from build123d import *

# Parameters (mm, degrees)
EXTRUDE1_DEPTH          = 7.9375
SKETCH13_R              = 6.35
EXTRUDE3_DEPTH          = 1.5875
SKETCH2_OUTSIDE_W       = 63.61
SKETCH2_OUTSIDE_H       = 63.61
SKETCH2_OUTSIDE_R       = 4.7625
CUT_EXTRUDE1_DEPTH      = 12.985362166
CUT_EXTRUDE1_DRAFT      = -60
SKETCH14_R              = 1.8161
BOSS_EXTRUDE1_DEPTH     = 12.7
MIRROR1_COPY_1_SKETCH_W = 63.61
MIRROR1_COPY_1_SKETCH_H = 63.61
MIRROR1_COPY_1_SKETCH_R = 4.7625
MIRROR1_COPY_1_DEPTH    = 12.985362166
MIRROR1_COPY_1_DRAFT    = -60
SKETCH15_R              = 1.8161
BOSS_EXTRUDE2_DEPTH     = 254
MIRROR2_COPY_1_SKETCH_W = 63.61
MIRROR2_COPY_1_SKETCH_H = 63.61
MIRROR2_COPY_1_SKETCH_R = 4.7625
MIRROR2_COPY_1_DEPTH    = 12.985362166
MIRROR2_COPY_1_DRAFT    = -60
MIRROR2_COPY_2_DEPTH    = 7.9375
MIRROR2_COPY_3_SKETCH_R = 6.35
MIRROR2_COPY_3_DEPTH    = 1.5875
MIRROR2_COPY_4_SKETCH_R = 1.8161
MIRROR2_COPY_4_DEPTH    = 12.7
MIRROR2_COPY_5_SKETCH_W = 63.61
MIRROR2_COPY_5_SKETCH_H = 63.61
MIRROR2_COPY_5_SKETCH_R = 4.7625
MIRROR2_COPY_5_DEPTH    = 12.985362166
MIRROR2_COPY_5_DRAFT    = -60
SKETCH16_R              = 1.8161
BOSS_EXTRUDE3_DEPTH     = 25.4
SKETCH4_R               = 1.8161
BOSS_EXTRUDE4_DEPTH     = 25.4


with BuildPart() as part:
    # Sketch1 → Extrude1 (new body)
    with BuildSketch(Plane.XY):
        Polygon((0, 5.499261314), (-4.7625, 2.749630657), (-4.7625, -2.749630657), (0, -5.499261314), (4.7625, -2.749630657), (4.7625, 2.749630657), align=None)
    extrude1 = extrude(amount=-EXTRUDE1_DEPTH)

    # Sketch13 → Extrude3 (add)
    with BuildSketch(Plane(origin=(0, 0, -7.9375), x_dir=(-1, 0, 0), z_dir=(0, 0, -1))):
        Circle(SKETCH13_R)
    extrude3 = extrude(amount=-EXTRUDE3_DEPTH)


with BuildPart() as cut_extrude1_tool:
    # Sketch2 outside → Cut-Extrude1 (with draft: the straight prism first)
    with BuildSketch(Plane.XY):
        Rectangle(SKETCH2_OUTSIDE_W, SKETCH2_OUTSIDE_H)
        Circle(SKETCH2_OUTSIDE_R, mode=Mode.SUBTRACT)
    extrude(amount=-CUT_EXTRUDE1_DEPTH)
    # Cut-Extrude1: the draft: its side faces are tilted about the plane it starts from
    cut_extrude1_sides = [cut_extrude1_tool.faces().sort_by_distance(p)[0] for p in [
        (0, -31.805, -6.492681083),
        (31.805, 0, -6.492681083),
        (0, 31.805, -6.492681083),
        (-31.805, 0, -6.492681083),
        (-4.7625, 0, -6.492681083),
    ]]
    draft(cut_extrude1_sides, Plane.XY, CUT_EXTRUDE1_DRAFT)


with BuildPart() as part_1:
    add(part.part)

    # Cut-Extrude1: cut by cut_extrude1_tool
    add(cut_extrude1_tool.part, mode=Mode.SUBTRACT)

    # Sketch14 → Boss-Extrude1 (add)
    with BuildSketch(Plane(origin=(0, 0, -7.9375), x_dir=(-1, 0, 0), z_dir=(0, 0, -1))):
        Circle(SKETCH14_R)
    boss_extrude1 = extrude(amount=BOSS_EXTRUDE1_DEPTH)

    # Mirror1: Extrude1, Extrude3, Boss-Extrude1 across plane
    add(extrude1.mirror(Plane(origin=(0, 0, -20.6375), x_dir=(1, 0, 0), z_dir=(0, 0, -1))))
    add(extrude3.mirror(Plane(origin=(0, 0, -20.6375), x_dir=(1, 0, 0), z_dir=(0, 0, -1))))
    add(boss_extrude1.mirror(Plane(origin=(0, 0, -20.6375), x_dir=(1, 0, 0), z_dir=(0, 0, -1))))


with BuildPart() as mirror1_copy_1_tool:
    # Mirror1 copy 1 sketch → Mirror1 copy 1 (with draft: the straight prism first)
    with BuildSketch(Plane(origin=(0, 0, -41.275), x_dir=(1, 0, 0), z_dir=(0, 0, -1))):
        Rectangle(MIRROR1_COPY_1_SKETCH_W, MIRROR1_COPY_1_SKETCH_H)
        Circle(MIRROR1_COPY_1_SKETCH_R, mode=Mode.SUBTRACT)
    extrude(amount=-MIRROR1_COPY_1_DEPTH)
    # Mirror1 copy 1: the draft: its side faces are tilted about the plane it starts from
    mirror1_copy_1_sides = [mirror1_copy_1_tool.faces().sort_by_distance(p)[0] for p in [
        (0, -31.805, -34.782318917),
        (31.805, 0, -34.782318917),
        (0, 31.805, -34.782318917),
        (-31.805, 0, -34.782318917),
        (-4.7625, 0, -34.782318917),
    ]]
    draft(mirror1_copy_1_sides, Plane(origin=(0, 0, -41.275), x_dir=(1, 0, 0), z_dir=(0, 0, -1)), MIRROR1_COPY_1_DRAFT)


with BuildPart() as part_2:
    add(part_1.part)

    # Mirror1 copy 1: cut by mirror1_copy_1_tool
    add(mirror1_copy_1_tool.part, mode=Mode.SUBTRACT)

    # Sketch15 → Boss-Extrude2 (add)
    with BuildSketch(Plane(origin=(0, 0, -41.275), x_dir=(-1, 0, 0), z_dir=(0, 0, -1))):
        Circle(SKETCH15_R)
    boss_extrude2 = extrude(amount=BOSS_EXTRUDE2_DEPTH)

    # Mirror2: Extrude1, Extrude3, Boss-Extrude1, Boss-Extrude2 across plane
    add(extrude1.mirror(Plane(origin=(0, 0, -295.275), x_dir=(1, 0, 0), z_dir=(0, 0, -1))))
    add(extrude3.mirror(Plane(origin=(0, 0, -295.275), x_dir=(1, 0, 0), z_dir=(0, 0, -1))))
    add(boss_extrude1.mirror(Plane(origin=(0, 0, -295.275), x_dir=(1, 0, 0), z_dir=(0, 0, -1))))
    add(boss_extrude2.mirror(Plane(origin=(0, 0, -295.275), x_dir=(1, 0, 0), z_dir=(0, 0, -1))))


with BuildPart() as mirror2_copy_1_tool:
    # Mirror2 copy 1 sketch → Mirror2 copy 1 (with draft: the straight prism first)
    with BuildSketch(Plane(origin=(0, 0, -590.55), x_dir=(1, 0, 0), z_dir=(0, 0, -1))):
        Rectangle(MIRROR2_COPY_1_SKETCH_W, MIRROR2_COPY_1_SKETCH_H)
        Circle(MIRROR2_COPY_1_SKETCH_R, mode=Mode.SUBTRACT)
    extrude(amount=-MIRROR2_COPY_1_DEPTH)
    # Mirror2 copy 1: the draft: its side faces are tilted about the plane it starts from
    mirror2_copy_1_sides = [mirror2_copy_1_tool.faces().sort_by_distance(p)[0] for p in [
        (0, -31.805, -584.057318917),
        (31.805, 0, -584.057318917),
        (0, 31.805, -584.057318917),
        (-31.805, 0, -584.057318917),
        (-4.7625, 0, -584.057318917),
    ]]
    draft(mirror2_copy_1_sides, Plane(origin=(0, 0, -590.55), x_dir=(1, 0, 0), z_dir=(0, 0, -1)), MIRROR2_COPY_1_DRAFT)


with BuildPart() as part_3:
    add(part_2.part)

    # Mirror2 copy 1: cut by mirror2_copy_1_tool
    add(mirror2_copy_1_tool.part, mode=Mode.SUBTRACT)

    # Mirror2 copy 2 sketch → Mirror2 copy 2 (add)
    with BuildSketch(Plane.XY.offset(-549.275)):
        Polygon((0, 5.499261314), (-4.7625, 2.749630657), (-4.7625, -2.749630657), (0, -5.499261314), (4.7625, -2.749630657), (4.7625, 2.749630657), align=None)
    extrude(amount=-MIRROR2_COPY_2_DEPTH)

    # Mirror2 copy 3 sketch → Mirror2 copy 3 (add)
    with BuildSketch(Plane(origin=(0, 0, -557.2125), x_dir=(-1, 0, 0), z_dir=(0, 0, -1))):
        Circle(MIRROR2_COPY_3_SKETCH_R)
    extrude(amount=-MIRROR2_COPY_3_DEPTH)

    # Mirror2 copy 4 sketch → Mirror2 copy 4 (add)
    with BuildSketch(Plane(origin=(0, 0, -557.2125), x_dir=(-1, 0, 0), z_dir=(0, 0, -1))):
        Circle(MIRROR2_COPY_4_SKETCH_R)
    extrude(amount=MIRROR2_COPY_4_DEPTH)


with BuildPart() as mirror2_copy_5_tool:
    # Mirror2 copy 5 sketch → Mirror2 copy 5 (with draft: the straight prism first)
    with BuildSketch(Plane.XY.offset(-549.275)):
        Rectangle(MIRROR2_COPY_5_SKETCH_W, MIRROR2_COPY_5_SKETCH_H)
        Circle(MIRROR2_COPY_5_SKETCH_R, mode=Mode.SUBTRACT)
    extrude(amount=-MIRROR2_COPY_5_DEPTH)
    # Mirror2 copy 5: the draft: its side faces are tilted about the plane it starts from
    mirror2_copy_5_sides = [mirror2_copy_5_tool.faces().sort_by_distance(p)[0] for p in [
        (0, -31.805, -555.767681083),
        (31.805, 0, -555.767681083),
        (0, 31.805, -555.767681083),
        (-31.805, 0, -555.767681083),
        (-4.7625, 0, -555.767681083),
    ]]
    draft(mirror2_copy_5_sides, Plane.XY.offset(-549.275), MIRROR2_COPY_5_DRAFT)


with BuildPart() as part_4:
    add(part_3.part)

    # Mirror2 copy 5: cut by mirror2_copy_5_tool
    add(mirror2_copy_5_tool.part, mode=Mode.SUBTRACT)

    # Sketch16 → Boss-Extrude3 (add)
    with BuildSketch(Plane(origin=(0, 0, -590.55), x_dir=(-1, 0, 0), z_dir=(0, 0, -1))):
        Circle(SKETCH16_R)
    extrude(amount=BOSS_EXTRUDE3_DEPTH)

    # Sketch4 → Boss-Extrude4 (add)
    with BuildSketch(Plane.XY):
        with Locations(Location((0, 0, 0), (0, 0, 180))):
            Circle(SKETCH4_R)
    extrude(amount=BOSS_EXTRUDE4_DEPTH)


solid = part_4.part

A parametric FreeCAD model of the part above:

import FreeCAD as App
import Part
import Sketcher
from FreeCAD import Vector
Q = App.Units.Quantity


def faces_at(feature, points):
    """Names of the faces that lie closest to the given points."""
    faces = feature.Shape.Faces
    near = lambda p: min(range(len(faces)), key=lambda i: faces[i].distToShape(Part.Vertex(*p))[0])
    return sorted({f"Face{near(p) + 1}" for p in points})


def add_polygon(sketch, points):
    """Adds a closed chain of lines whose ends are joined by coincident constraints."""
    first, n = sketch.GeometryCount, len(points)
    for a, b in zip(points, points[1:] + points[:1]):
        sketch.addGeometry(Part.LineSegment(App.Vector(*a, 0), App.Vector(*b, 0)), False)
    for i in range(n):
        sketch.addConstraint(Sketcher.Constraint("Coincident", first + i, 2, first + (i + 1) % n, 1))

doc = App.newDocument("Part")
params = doc.addObject("Spreadsheet::Sheet", "Params")
for row, (alias, value) in enumerate([
    ("pad1_length", "0.3125 in"),
    ("sketch2_diameter", "0.5 in"),
    ("pad2_length", "0.0625 in"),
    ("sketch3_diameter", "0.375 in"),
    ("pad3_length", "12.985362 mm"),
    ("draft_angle", "60 deg"),
    ("sketch4_diameter", "0.143 in"),
    ("pad4_length", "0.5 in"),
    ("sketch5_diameter", "0.375 in"),
    ("pad5_length", "12.985362 mm"),
    ("draft2_angle", "60 deg"),
    ("sketch6_diameter", "0.143 in"),
    ("pad6_length", "10 in"),
    ("sketch7_diameter", "0.375 in"),
    ("pad7_length", "12.985362 mm"),
    ("draft3_angle", "60 deg"),
    ("pad8_length", "0.3125 in"),
    ("sketch9_diameter", "0.5 in"),
    ("pad9_length", "0.0625 in"),
    ("sketch10_diameter", "0.143 in"),
    ("pad10_length", "0.5 in"),
    ("sketch11_diameter", "0.375 in"),
    ("pad11_length", "12.985362 mm"),
    ("draft4_angle", "60 deg"),
    ("sketch12_diameter", "0.143 in"),
    ("pad12_length", "1 in"),
    ("sketch13_diameter", "0.143 in"),
    ("pad13_length", "1 in"),
], start=1):
    params.set(f"A{row}", alias)
    params.set(f"B{row}", "=" + value)
    params.setAlias(f"B{row}", alias)

body = doc.addObject("PartDesign::Body", "Body")

sketch1 = body.newObject("Sketcher::SketchObject", "Sketch")
sketch1.AttachmentSupport = (doc.getObject("XY_Plane"), [""])
sketch1.MapMode = "FlatFace"
add_polygon(sketch1, [(0, 5), (-5, 3), (-5, -3), (0, -5), (5, -3), (5, 3)])
sketch1.addConstraint([
    Sketcher.Constraint("Vertical", 1),
    Sketcher.Constraint("Vertical", 4),
    Sketcher.Constraint("Symmetric", 0, 2, 3, 2, -1, 1),
    Sketcher.Constraint("Symmetric", 2, 2, 5, 2, -1, 1),
    Sketcher.Constraint("PointOnObject", 2, 2, -2),
    Sketcher.Constraint("Parallel", 2, 5),
    Sketcher.Constraint("Horizontal", 1, 2, 3, 2),
    Sketcher.Constraint("Angle", 0, Q("-150 deg")),
    Sketcher.Constraint("DistanceX", 0, 2, -1, 1, Q("0.1875 in")),
    Sketcher.Constraint("DistanceY", 1, 2, 1, 1, 5.499261),
])
pad1 = body.newObject("PartDesign::Pad", "Pad")
pad1.Profile = sketch1
pad1.setExpression("Length", "Params.pad1_length")
pad1.Reversed = True

sketch2 = body.newObject("Sketcher::SketchObject", "Sketch001")
sketch2.AttachmentSupport = (doc.getObject("XY_Plane"), [""])
sketch2.MapMode = "FlatFace"
sketch2.AttachmentOffset = App.Placement(Vector(0, 0, -0.3125 * 25.4), App.Rotation())
sketch2.addGeometry(Part.Circle(Vector(0, 0, 0), Vector(0, 0, 1), 6), False)
sketch2.addConstraint([
    Sketcher.Constraint("Coincident", 0, 3, -1, 1),
    Sketcher.Constraint("Diameter", 0, Q("0.5 in")),
])
sketch2.setExpression("Constraints[1]", "Params.sketch2_diameter")
pad2 = body.newObject("PartDesign::Pad", "Pad001")
pad2.Profile = sketch2
pad2.setExpression("Length", "Params.pad2_length")
body2 = doc.addObject("PartDesign::Body", "Body001")

sketch3 = body2.newObject("Sketcher::SketchObject", "Sketch002")
sketch3.AttachmentSupport = (doc.getObject("XY_Plane001"), [""])
sketch3.MapMode = "FlatFace"
add_polygon(sketch3, [(-31.8, 31.8), (-31.8, -31.8), (31.8, -31.8), (31.8, 31.8)])
sketch3.addGeometry(Part.Circle(Vector(0, 0, 0), Vector(0, 0, 1), 4.8), False)
sketch3.addConstraint([
    Sketcher.Constraint("Vertical", 0),
    Sketcher.Constraint("Horizontal", 1),
    Sketcher.Constraint("Vertical", 2),
    Sketcher.Constraint("Horizontal", 3),
    Sketcher.Constraint("Coincident", 4, 3, -1, 1),
    Sketcher.Constraint("Symmetric", 0, 2, 2, 2, -1, 1),
    Sketcher.Constraint("Equal", 3, 0),
    Sketcher.Constraint("Diameter", 4, Q("0.375 in")),
    Sketcher.Constraint("DistanceX", 1, 1, 1, 2, 63.61),
])
sketch3.setExpression("Constraints[11]", "Params.sketch3_diameter")
pad3 = body2.newObject("PartDesign::Pad", "Pad002")
pad3.Profile = sketch3
pad3.setExpression("Length", "Params.pad3_length")
pad3.Reversed = True
doc.recompute()

draft = body2.newObject("PartDesign::Draft", "Draft")
draft.Base = (pad3, faces_at(pad3, [
    (0, -31.805, -6.493),
    (31.805, 0, -6.493),
    (0, 31.805, -6.493),
    (-31.805, 0, -6.493),
    (-4.763, 0, -6.493),
]))
draft.NeutralPlane = (doc.getObject("XY_Plane001"), [""])
draft.setExpression("Angle", "Params.draft_angle")
draft.Reversed = True
doc.recompute()

boolean = body.newObject("PartDesign::Boolean", "Boolean")
boolean.Type = "Cut"
boolean.addObjects([body2])

sketch4 = body.newObject("Sketcher::SketchObject", "Sketch003")
sketch4.AttachmentSupport = (doc.getObject("XY_Plane"), [""])
sketch4.MapMode = "FlatFace"
sketch4.AttachmentOffset = App.Placement(Vector(0, 0, -0.3125 * 25.4), App.Rotation())
sketch4.addGeometry(Part.Circle(Vector(0, 0, 0), Vector(0, 0, 1), 1.8), False)
sketch4.addConstraint([
    Sketcher.Constraint("Coincident", 0, 3, -1, 1),
    Sketcher.Constraint("Diameter", 0, Q("0.143 in")),
])
sketch4.setExpression("Constraints[1]", "Params.sketch4_diameter")
pad4 = body.newObject("PartDesign::Pad", "Pad003")
pad4.Profile = sketch4
pad4.setExpression("Length", "Params.pad4_length")
pad4.Reversed = True
doc.recompute()

datumplane = body.newObject("PartDesign::Plane", "DatumPlane")
datumplane.AttachmentSupport = (doc.getObject("XY_Plane"), [""])
datumplane.MapMode = "FlatFace"
datumplane.AttachmentOffset = App.Placement(Vector(0, 0, -0.8125 * 25.4), App.Rotation())
mirrored = body.newObject("PartDesign::Mirrored", "Mirrored")
mirrored.Originals = [pad1, pad2, pad4]
mirrored.MirrorPlane = (datumplane, [""])
body.Tip = mirrored
body3 = doc.addObject("PartDesign::Body", "Body002")

sketch5 = body3.newObject("Sketcher::SketchObject", "Sketch004")
sketch5.AttachmentSupport = (doc.getObject("XY_Plane002"), [""])
sketch5.MapMode = "FlatFace"
sketch5.AttachmentOffset = App.Placement(Vector(0, 0, -1.625 * 25.4), App.Rotation())
add_polygon(sketch5, [(-31.8, -31.8), (-31.8, 31.8), (31.8, 31.8), (31.8, -31.8)])
sketch5.addGeometry(Part.Circle(Vector(0, 0, 0), Vector(0, 0, 1), 4.8), False)
sketch5.addConstraint([
    Sketcher.Constraint("Vertical", 0),
    Sketcher.Constraint("Horizontal", 1),
    Sketcher.Constraint("Vertical", 2),
    Sketcher.Constraint("Horizontal", 3),
    Sketcher.Constraint("Coincident", 4, 3, -1, 1),
    Sketcher.Constraint("Symmetric", 0, 2, 2, 2, -1, 1),
    Sketcher.Constraint("Equal", 3, 0),
    Sketcher.Constraint("Diameter", 4, Q("0.375 in")),
    Sketcher.Constraint("DistanceX", 1, 1, 1, 2, 63.61),
])
sketch5.setExpression("Constraints[11]", "Params.sketch5_diameter")
pad5 = body3.newObject("PartDesign::Pad", "Pad004")
pad5.Profile = sketch5
pad5.setExpression("Length", "Params.pad5_length")
doc.recompute()

datumplane2 = body3.newObject("PartDesign::Plane", "DatumPlane001")
datumplane2.AttachmentSupport = (doc.getObject("XY_Plane002"), [""])
datumplane2.MapMode = "FlatFace"
datumplane2.AttachmentOffset = App.Placement(Vector(0, 0, -1.625 * 25.4), App.Rotation())
draft2 = body3.newObject("PartDesign::Draft", "Draft001")
draft2.Base = (pad5, faces_at(pad5, [
    (0, -31.805, -34.782),
    (31.805, 0, -34.782),
    (0, 31.805, -34.782),
    (-31.805, 0, -34.782),
    (-4.763, 0, -34.782),
]))
draft2.NeutralPlane = (datumplane2, [""])
draft2.setExpression("Angle", "Params.draft2_angle")
draft2.Reversed = False
body.AllowCompound = True
doc.recompute()

boolean2 = body.newObject("PartDesign::Boolean", "Boolean001")
boolean2.Type = "Cut"
boolean2.addObjects([body3])

sketch6 = body.newObject("Sketcher::SketchObject", "Sketch005")
sketch6.AttachmentSupport = (doc.getObject("XY_Plane"), [""])
sketch6.MapMode = "FlatFace"
sketch6.AttachmentOffset = App.Placement(Vector(0, 0, -1.625 * 25.4), App.Rotation())
sketch6.addGeometry(Part.Circle(Vector(0, 0, 0), Vector(0, 0, 1), 1.8), False)
sketch6.addConstraint([
    Sketcher.Constraint("Coincident", 0, 3, -1, 1),
    Sketcher.Constraint("Diameter", 0, Q("0.143 in")),
])
sketch6.setExpression("Constraints[1]", "Params.sketch6_diameter")
pad6 = body.newObject("PartDesign::Pad", "Pad005")
pad6.Profile = sketch6
pad6.setExpression("Length", "Params.pad6_length")
pad6.Reversed = True
doc.recompute()

datumplane3 = body.newObject("PartDesign::Plane", "DatumPlane002")
datumplane3.AttachmentSupport = (doc.getObject("XY_Plane"), [""])
datumplane3.MapMode = "FlatFace"
datumplane3.AttachmentOffset = App.Placement(Vector(0, 0, -11.625 * 25.4), App.Rotation())
mirrored2 = body.newObject("PartDesign::Mirrored", "Mirrored001")
mirrored2.Originals = [pad1, pad2, pad4, pad6]
mirrored2.MirrorPlane = (datumplane3, [""])
body.Tip = mirrored2
body4 = doc.addObject("PartDesign::Body", "Body003")

sketch7 = body4.newObject("Sketcher::SketchObject", "Sketch006")
sketch7.AttachmentSupport = (doc.getObject("XY_Plane003"), [""])
sketch7.MapMode = "FlatFace"
sketch7.AttachmentOffset = App.Placement(Vector(0, 0, -23.25 * 25.4), App.Rotation())
add_polygon(sketch7, [(-31.8, -31.8), (-31.8, 31.8), (31.8, 31.8), (31.8, -31.8)])
sketch7.addGeometry(Part.Circle(Vector(0, 0, 0), Vector(0, 0, 1), 4.8), False)
sketch7.addConstraint([
    Sketcher.Constraint("Vertical", 0),
    Sketcher.Constraint("Horizontal", 1),
    Sketcher.Constraint("Vertical", 2),
    Sketcher.Constraint("Horizontal", 3),
    Sketcher.Constraint("Coincident", 4, 3, -1, 1),
    Sketcher.Constraint("Symmetric", 0, 2, 2, 2, -1, 1),
    Sketcher.Constraint("Equal", 3, 0),
    Sketcher.Constraint("Diameter", 4, Q("0.375 in")),
    Sketcher.Constraint("DistanceX", 1, 1, 1, 2, 63.61),
])
sketch7.setExpression("Constraints[11]", "Params.sketch7_diameter")
pad7 = body4.newObject("PartDesign::Pad", "Pad006")
pad7.Profile = sketch7
pad7.setExpression("Length", "Params.pad7_length")
doc.recompute()

datumplane4 = body4.newObject("PartDesign::Plane", "DatumPlane003")
datumplane4.AttachmentSupport = (doc.getObject("XY_Plane003"), [""])
datumplane4.MapMode = "FlatFace"
datumplane4.AttachmentOffset = App.Placement(Vector(0, 0, -23.25 * 25.4), App.Rotation())
draft3 = body4.newObject("PartDesign::Draft", "Draft002")
draft3.Base = (pad7, faces_at(pad7, [
    (0, -31.805, -584.057),
    (31.805, 0, -584.057),
    (0, 31.805, -584.057),
    (-31.805, 0, -584.057),
    (-4.763, 0, -584.057),
]))
draft3.NeutralPlane = (datumplane4, [""])
draft3.setExpression("Angle", "Params.draft3_angle")
draft3.Reversed = False
body.AllowCompound = True
doc.recompute()

boolean3 = body.newObject("PartDesign::Boolean", "Boolean002")
boolean3.Type = "Cut"
boolean3.addObjects([body4])

sketch8 = body.newObject("Sketcher::SketchObject", "Sketch007")
sketch8.AttachmentSupport = (doc.getObject("XY_Plane"), [""])
sketch8.MapMode = "FlatFace"
sketch8.AttachmentOffset = App.Placement(Vector(0, 0, -21.625 * 25.4), App.Rotation())
add_polygon(sketch8, [(0, 5), (-5, 3), (-5, -3), (0, -5), (5, -3), (5, 3)])
sketch8.addConstraint([
    Sketcher.Constraint("Vertical", 1),
    Sketcher.Constraint("Vertical", 4),
    Sketcher.Constraint("Symmetric", 0, 2, 3, 2, -1, 1),
    Sketcher.Constraint("Symmetric", 2, 2, 5, 2, -1, 1),
    Sketcher.Constraint("PointOnObject", 2, 2, -2),
    Sketcher.Constraint("Parallel", 2, 5),
    Sketcher.Constraint("Horizontal", 1, 2, 3, 2),
    Sketcher.Constraint("Angle", 0, Q("-150 deg")),
    Sketcher.Constraint("DistanceX", 0, 2, -1, 1, Q("0.1875 in")),
    Sketcher.Constraint("DistanceY", 1, 2, 1, 1, 5.499261),
])
pad8 = body.newObject("PartDesign::Pad", "Pad007")
pad8.Profile = sketch8
pad8.setExpression("Length", "Params.pad8_length")
pad8.Reversed = True

sketch9 = body.newObject("Sketcher::SketchObject", "Sketch008")
sketch9.AttachmentSupport = (doc.getObject("XY_Plane"), [""])
sketch9.MapMode = "FlatFace"
sketch9.AttachmentOffset = App.Placement(Vector(0, 0, -21.9375 * 25.4), App.Rotation())
sketch9.addGeometry(Part.Circle(Vector(0, 0, 0), Vector(0, 0, 1), 6), False)
sketch9.addConstraint([
    Sketcher.Constraint("Coincident", 0, 3, -1, 1),
    Sketcher.Constraint("Diameter", 0, Q("0.5 in")),
])
sketch9.setExpression("Constraints[1]", "Params.sketch9_diameter")
pad9 = body.newObject("PartDesign::Pad", "Pad008")
pad9.Profile = sketch9
pad9.setExpression("Length", "Params.pad9_length")

sketch10 = body.newObject("Sketcher::SketchObject", "Sketch009")
sketch10.AttachmentSupport = (doc.getObject("XY_Plane"), [""])
sketch10.MapMode = "FlatFace"
sketch10.AttachmentOffset = App.Placement(Vector(0, 0, -21.9375 * 25.4), App.Rotation())
sketch10.addGeometry(Part.Circle(Vector(0, 0, 0), Vector(0, 0, 1), 1.8), False)
sketch10.addConstraint([
    Sketcher.Constraint("Coincident", 0, 3, -1, 1),
    Sketcher.Constraint("Diameter", 0, Q("0.143 in")),
])
sketch10.setExpression("Constraints[1]", "Params.sketch10_diameter")
pad10 = body.newObject("PartDesign::Pad", "Pad009")
pad10.Profile = sketch10
pad10.setExpression("Length", "Params.pad10_length")
pad10.Reversed = True
body5 = doc.addObject("PartDesign::Body", "Body004")

sketch11 = body5.newObject("Sketcher::SketchObject", "Sketch010")
sketch11.AttachmentSupport = (doc.getObject("XY_Plane004"), [""])
sketch11.MapMode = "FlatFace"
sketch11.AttachmentOffset = App.Placement(Vector(0, 0, -21.625 * 25.4), App.Rotation())
add_polygon(sketch11, [(-31.8, 31.8), (-31.8, -31.8), (31.8, -31.8), (31.8, 31.8)])
sketch11.addGeometry(Part.Circle(Vector(0, 0, 0), Vector(0, 0, 1), 4.8), False)
sketch11.addConstraint([
    Sketcher.Constraint("Vertical", 0),
    Sketcher.Constraint("Horizontal", 1),
    Sketcher.Constraint("Vertical", 2),
    Sketcher.Constraint("Horizontal", 3),
    Sketcher.Constraint("Coincident", 4, 3, -1, 1),
    Sketcher.Constraint("Symmetric", 0, 2, 2, 2, -1, 1),
    Sketcher.Constraint("Equal", 3, 0),
    Sketcher.Constraint("Diameter", 4, Q("0.375 in")),
    Sketcher.Constraint("DistanceX", 1, 1, 1, 2, 63.61),
])
sketch11.setExpression("Constraints[11]", "Params.sketch11_diameter")
pad11 = body5.newObject("PartDesign::Pad", "Pad010")
pad11.Profile = sketch11
pad11.setExpression("Length", "Params.pad11_length")
pad11.Reversed = True
doc.recompute()

datumplane5 = body5.newObject("PartDesign::Plane", "DatumPlane004")
datumplane5.AttachmentSupport = (doc.getObject("XY_Plane004"), [""])
datumplane5.MapMode = "FlatFace"
datumplane5.AttachmentOffset = App.Placement(Vector(0, 0, -21.625 * 25.4), App.Rotation())
draft4 = body5.newObject("PartDesign::Draft", "Draft003")
draft4.Base = (pad11, faces_at(pad11, [
    (0, -31.805, -555.768),
    (31.805, 0, -555.768),
    (0, 31.805, -555.768),
    (-31.805, 0, -555.768),
    (-4.763, 0, -555.768),
]))
draft4.NeutralPlane = (datumplane5, [""])
draft4.setExpression("Angle", "Params.draft4_angle")
draft4.Reversed = True
doc.recompute()

boolean4 = body.newObject("PartDesign::Boolean", "Boolean003")
boolean4.Type = "Cut"
boolean4.addObjects([body5])

sketch12 = body.newObject("Sketcher::SketchObject", "Sketch011")
sketch12.AttachmentSupport = (doc.getObject("XY_Plane"), [""])
sketch12.MapMode = "FlatFace"
sketch12.AttachmentOffset = App.Placement(Vector(0, 0, -23.25 * 25.4), App.Rotation())
sketch12.addGeometry(Part.Circle(Vector(0, 0, 0), Vector(0, 0, 1), 1.8), False)
sketch12.addConstraint([
    Sketcher.Constraint("Coincident", 0, 3, -1, 1),
    Sketcher.Constraint("Diameter", 0, Q("0.143 in")),
])
sketch12.setExpression("Constraints[1]", "Params.sketch12_diameter")
pad12 = body.newObject("PartDesign::Pad", "Pad011")
pad12.Profile = sketch12
pad12.setExpression("Length", "Params.pad12_length")
pad12.Reversed = True

sketch13 = body.newObject("Sketcher::SketchObject", "Sketch012")
sketch13.AttachmentSupport = (doc.getObject("XY_Plane"), [""])
sketch13.MapMode = "FlatFace"
sketch13.addGeometry(Part.Circle(Vector(0, 0, 0), Vector(0, 0, 1), 1.8), False)
sketch13.addConstraint([
    Sketcher.Constraint("Coincident", 0, 3, -1, 1),
    Sketcher.Constraint("Diameter", 0, Q("0.143 in")),
])
sketch13.setExpression("Constraints[1]", "Params.sketch13_diameter")
pad13 = body.newObject("PartDesign::Pad", "Pad012")
pad13.Profile = sketch13
pad13.setExpression("Length", "Params.pad13_length")

doc.recompute()
